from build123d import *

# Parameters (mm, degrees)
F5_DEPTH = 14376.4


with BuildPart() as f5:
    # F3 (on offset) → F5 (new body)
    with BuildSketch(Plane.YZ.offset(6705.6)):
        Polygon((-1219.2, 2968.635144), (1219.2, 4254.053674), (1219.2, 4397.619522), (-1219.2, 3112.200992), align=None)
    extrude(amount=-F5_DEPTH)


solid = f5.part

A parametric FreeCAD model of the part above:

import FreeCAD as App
import Part
import Sketcher
Q = App.Units.Quantity


def add_polygon(sketch, points):
    """Adds a closed chain of lines whose ends are joined by coincident constraints."""
    first, n = sketch.GeometryCount, len(points)
    for a, b in zip(points, points[1:] + points[:1]):
        sketch.addGeometry(Part.LineSegment(App.Vector(*a, 0), App.Vector(*b, 0)), False)
    for i in range(n):
        sketch.addConstraint(Sketcher.Constraint("Coincident", first + i, 2, first + (i + 1) % n, 1))

doc = App.newDocument("Part")
params = doc.addObject("Spreadsheet::Sheet", "Params")
for row, (alias, value) in enumerate([
    ("pad1_length", "566 in"),
], start=1):
    params.set(f"A{row}", alias)
    params.set(f"B{row}", "=" + value)
    params.setAlias(f"B{row}", alias)

body = doc.addObject("PartDesign::Body", "Body")

# Sketch on YZ plane
sketch1 = doc.addObject("Sketcher::SketchObject", "Sketch")
body.addObject(sketch1)
sketch1.AttachmentSupport = (doc.YZ_Plane, [""])
sketch1.MapMode = "FlatFace"
sketch1.AttachmentOffset = App.Placement(App.Vector(0, 0, 264 * 25.4), App.Rotation())
add_polygon(sketch1, [(-1219.2, 2968.635144), (1219.2, 4254.053674), (1219.2, 4397.619522), (-1219.2, 3112.200992)])  # lines 0-3
sketch1.addConstraint([
    Sketcher.Constraint("Vertical", 1),
    Sketcher.Constraint("Vertical", 3),
    Sketcher.Constraint("Parallel", 0, 2),
    Sketcher.Constraint("DistanceX", -1, 1, 0, 2, Q("48 in")),
    Sketcher.Constraint("DistanceX", 2, 2, -1, 1, Q("48 in")),
    Sketcher.Constraint("DistanceY", 1, 1, 1, 2, 143.565848),
    Sketcher.Constraint("DistanceY", -1, 1, 1, 2, 4397.619522),
    Sketcher.Constraint("DistanceY", 2, 2, 0, 2, 1141.852682),
])
pad1 = doc.addObject("PartDesign::Pad", "Pad")
body.addObject(pad1)
pad1.Profile = sketch1
pad1.setExpression("Length", "Params.pad1_length")
pad1.Reversed = True

doc.recompute()
